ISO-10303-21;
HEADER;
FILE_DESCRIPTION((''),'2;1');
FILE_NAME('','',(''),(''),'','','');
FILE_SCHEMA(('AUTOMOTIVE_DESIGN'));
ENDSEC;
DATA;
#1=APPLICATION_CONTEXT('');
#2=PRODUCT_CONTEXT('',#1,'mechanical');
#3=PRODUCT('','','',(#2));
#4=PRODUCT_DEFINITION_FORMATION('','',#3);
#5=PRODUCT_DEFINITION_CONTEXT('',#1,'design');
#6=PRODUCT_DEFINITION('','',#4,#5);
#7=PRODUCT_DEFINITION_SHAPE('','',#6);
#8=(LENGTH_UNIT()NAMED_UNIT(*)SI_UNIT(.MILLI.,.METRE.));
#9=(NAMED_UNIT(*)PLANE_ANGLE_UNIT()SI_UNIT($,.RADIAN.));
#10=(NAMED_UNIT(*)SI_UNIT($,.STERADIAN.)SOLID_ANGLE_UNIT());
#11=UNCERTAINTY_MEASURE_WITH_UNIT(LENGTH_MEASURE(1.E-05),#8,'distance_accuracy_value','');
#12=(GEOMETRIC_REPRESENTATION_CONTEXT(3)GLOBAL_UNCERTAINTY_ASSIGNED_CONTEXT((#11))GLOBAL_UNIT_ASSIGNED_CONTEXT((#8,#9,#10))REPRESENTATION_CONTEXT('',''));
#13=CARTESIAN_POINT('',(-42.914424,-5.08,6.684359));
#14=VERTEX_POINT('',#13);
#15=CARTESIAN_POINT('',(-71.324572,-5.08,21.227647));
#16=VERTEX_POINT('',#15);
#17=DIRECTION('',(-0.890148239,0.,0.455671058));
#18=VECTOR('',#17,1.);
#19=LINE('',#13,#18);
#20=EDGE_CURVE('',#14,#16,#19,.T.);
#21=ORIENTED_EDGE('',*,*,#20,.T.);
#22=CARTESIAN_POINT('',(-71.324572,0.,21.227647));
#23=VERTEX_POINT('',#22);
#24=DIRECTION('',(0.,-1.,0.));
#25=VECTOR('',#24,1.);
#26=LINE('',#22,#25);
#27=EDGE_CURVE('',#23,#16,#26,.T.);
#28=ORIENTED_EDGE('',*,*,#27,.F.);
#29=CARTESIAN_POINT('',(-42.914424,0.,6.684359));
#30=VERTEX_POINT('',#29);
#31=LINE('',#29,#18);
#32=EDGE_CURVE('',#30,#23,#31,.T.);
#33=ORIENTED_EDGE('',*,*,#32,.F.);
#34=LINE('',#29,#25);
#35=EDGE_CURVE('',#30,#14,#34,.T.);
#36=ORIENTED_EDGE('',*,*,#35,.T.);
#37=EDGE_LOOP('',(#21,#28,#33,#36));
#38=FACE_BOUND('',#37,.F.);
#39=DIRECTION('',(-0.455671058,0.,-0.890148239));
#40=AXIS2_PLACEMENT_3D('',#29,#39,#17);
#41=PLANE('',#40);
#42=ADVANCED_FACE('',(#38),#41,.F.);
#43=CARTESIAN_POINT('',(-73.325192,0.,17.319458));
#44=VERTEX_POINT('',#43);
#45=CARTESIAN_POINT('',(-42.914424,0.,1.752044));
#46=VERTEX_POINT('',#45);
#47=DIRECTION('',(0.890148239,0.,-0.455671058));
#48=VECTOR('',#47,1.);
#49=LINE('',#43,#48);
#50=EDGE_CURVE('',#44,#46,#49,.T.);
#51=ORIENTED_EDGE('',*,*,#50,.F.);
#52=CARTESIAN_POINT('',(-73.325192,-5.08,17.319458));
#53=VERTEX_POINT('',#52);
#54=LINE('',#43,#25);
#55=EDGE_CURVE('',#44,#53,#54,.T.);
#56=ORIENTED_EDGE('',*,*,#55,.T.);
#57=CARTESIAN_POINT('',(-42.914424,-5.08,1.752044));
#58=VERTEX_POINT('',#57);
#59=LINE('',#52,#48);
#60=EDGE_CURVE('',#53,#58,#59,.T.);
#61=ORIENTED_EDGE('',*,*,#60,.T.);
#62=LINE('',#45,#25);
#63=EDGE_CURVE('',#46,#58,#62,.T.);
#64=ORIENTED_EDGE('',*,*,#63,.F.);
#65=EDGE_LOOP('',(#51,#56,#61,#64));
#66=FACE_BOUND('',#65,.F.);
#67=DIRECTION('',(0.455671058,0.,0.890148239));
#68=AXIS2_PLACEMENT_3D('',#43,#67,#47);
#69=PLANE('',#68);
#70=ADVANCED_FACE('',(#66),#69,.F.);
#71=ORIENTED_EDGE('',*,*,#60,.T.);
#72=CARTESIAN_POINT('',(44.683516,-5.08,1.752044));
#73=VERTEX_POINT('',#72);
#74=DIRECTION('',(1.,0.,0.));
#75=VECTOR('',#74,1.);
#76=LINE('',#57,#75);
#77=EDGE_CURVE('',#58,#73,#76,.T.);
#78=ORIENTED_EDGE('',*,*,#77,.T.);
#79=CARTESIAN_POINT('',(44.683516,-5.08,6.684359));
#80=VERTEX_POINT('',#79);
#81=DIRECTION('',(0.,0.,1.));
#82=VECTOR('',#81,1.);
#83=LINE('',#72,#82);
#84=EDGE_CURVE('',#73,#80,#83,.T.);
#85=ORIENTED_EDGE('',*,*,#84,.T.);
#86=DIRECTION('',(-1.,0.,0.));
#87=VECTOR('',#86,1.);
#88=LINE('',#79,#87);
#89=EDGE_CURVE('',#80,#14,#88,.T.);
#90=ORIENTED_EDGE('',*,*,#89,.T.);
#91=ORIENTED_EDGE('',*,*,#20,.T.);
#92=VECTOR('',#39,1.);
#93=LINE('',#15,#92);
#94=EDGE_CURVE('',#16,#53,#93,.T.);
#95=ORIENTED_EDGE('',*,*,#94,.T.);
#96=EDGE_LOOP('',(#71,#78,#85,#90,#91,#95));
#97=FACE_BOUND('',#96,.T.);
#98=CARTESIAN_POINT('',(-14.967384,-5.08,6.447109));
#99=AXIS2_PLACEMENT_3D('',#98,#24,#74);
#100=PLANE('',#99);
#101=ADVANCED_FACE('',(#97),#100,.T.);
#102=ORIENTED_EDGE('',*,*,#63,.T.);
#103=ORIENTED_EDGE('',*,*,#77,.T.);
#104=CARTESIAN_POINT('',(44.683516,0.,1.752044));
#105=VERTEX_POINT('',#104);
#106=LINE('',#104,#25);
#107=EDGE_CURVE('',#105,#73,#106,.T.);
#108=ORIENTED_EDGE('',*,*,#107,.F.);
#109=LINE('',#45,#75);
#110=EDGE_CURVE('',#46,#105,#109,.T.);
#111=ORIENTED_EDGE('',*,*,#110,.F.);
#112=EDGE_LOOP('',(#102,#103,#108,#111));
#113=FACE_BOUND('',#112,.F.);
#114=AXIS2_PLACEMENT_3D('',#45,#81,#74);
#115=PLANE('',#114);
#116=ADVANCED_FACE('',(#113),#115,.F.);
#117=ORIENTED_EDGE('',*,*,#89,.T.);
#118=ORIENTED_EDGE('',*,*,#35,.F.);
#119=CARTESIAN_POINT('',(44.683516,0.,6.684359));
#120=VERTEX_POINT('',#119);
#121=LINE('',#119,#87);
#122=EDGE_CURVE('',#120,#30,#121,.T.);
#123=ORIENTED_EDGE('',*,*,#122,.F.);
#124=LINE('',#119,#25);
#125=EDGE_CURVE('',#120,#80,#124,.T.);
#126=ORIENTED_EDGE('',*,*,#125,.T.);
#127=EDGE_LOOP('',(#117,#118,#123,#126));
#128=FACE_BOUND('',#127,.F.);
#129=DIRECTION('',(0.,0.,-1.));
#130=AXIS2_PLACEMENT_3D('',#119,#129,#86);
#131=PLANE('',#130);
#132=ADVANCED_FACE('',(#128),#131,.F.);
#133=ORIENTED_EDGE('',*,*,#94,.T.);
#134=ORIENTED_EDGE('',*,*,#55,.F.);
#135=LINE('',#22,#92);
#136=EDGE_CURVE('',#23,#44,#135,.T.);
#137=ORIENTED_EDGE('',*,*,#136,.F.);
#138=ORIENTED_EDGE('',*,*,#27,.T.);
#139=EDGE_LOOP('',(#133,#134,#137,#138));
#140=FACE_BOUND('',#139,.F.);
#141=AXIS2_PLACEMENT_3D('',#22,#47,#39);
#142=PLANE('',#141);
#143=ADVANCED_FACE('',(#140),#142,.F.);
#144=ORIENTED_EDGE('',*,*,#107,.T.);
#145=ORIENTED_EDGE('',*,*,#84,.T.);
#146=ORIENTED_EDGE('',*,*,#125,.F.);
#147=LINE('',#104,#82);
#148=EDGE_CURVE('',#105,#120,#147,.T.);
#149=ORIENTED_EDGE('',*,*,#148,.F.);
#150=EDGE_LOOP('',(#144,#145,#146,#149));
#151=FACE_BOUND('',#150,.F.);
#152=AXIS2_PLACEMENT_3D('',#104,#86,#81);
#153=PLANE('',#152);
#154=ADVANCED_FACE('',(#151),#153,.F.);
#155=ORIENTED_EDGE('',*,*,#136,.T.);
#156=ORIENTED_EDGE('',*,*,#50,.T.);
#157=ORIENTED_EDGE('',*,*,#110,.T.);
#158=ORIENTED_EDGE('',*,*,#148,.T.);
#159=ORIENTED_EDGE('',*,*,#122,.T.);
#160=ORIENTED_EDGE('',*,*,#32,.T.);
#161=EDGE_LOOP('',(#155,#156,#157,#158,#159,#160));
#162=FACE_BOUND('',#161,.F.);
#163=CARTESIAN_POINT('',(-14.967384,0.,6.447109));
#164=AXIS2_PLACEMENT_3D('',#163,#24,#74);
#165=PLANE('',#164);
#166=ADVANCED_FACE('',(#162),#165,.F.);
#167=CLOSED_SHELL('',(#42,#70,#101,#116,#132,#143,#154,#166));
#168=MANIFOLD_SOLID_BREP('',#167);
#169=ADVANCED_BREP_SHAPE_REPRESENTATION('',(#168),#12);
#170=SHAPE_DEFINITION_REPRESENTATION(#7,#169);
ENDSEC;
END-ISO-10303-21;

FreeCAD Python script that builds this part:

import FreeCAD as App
import Part
import Sketcher

V = App.Vector
Q = App.Units.Quantity

doc = App.newDocument("Part")
body = doc.addObject("PartDesign::Body", "Body")

# Sketch on XZ plane
sketch1 = doc.addObject("Sketcher::SketchObject", "Sketch")
body.addObject(sketch1)
sketch1.AttachmentSupport = (doc.XZ_Plane, [""])
sketch1.MapMode = "FlatFace"
sketch1.addGeometry(Part.LineSegment(V(47.7, -8.7, 0), V(46.4, -5.2, 0)), False)
sketch1.addGeometry(Part.LineSegment(V(46.4, -5.2, 0), V(-41.4, -5.2, 0)), False)
sketch1.addGeometry(Part.LineSegment(V(-41.4, -5.2, 0), V(-79.4, 16.4, 0)), False)
sketch1.addGeometry(Part.LineSegment(V(-79.4, 16.4, 0), V(-81.8, 12, 0)), False)
sketch1.addGeometry(Part.LineSegment(V(-81.8, 12, 0), V(-41.4, -8.7, 0)), False)
sketch1.addGeometry(Part.LineSegment(V(-41.4, -8.7, 0), V(47.7, -8.7, 0)), False)
sketch1.addConstraint(Sketcher.Constraint("Coincident", 0, 2, 1, 1))
sketch1.addConstraint(Sketcher.Constraint("Coincident", 1, 2, 2, 1))
sketch1.addConstraint(Sketcher.Constraint("Coincident", 2, 2, 3, 1))
sketch1.addConstraint(Sketcher.Constraint("Coincident", 3, 2, 4, 1))
sketch1.addConstraint(Sketcher.Constraint("Coincident", 4, 2, 5, 1))
sketch1.addConstraint(Sketcher.Constraint("Coincident", 5, 2, 0, 1))
sketch1.addConstraint(Sketcher.Constraint("Horizontal", 1))
sketch1.addConstraint(Sketcher.Constraint("Horizontal", 5))
sketch1.addConstraint(Sketcher.Constraint("Perpendicular", 2, 3))
sketch1.addConstraint(Sketcher.Constraint("Vertical", 1, 2, 4, 2))
sketch1.addConstraint(Sketcher.Constraint("DistanceX", 1, 2, 1, 1, Q("87.759949 mm")))
sketch1.addConstraint(Sketcher.Constraint("DistanceY", 0, 2, -1, 1, Q("5.2394 mm")))
sketch1.addConstraint(Sketcher.Constraint("DistanceX", 2, 2, 0, 2, Q("125.745598 mm")))
sketch1.addConstraint(Sketcher.Constraint("Distance", 2, Q("43.703669 mm")))
sketch1.addConstraint(Sketcher.Constraint("Distance", 3, Q("5.008631 mm")))
sketch1.addConstraint(Sketcher.Constraint("Distance", 4, Q("45.473818 mm")))
sketch1.addConstraint(Sketcher.Constraint("DistanceX", 5, 1, 5, 2, Q("89.069795 mm")))
sketch1.addConstraint(Sketcher.Constraint("DistanceX", -1, 1, 0, 2, Q("46.390522 mm")))
pad1 = doc.addObject("PartDesign::Pad", "Pad")
body.addObject(pad1)
pad1.Profile = sketch1
pad1.Length = Q("0.2 in")
body2 = doc.addObject("PartDesign::Body", "Body001")

# Sketch on XZ plane
sketch2 = doc.addObject("Sketcher::SketchObject", "Sketch001")
body2.addObject(sketch2)
sketch2.AttachmentSupport = (doc.getObject("XZ_Plane001"), [""])
sketch2.MapMode = "FlatFace"
sketch2.addGeometry(Part.LineSegment(V(44.7, 1.8, 0), V(44.7, 6.7, 0)), False)
sketch2.addGeometry(Part.LineSegment(V(44.7, 6.7, 0), V(-42.9, 6.7, 0)), False)
sketch2.addGeometry(Part.LineSegment(V(-42.9, 6.7, 0), V(-71.3, 21.2, 0)), False)
sketch2.addGeometry(Part.LineSegment(V(-71.3, 21.2, 0), V(-73.3, 17.3, 0)), False)
sketch2.addGeometry(Part.LineSegment(V(-73.3, 17.3, 0), V(-42.9, 1.8, 0)), False)
sketch2.addGeometry(Part.LineSegment(V(-42.9, 1.8, 0), V(44.7, 1.8, 0)), False)
sketch2.addConstraint(Sketcher.Constraint("Coincident", 0, 2, 1, 1))
sketch2.addConstraint(Sketcher.Constraint("Coincident", 1, 2, 2, 1))
sketch2.addConstraint(Sketcher.Constraint("Coincident", 2, 2, 3, 1))
sketch2.addConstraint(Sketcher.Constraint("Coincident", 3, 2, 4, 1))
sketch2.addConstraint(Sketcher.Constraint("Coincident", 4, 2, 5, 1))
sketch2.addConstraint(Sketcher.Constraint("Coincident", 5, 2, 0, 1))
sketch2.addConstraint(Sketcher.Constraint("Vertical", 0))
sketch2.addConstraint(Sketcher.Constraint("Horizontal", 1))
sketch2.addConstraint(Sketcher.Constraint("Horizontal", 5))
sketch2.addConstraint(Sketcher.Constraint("Perpendicular", 2, 3))
sketch2.addConstraint(Sketcher.Constraint("Perpendicular", 3, 4))
sketch2.addConstraint(Sketcher.Constraint("Vertical", 1, 2, 4, 2))
sketch2.addConstraint(Sketcher.Constraint("Distance", 2, Q("31.916198 mm")))
sketch2.addConstraint(Sketcher.Constraint("DistanceX", 1, 2, 1, 1, Q("87.59794 mm")))
sketch2.addConstraint(Sketcher.Constraint("DistanceY", 1, 2, 3, 2, Q("10.6351 mm")))
sketch2.addConstraint(Sketcher.Constraint("Distance", 3, Q("4.390491 mm")))
sketch2.addConstraint(Sketcher.Constraint("DistanceY", -1, 1, 0, 2, Q("6.684359 mm")))
sketch2.addConstraint(Sketcher.Constraint("DistanceX", 2, 2, -1, 1, Q("71.324572 mm")))
pad2 = doc.addObject("PartDesign::Pad", "Pad001")
body2.addObject(pad2)
pad2.Profile = sketch2
pad2.Length = Q("0.2 in")
body.Visibility = False

doc.recompute()
